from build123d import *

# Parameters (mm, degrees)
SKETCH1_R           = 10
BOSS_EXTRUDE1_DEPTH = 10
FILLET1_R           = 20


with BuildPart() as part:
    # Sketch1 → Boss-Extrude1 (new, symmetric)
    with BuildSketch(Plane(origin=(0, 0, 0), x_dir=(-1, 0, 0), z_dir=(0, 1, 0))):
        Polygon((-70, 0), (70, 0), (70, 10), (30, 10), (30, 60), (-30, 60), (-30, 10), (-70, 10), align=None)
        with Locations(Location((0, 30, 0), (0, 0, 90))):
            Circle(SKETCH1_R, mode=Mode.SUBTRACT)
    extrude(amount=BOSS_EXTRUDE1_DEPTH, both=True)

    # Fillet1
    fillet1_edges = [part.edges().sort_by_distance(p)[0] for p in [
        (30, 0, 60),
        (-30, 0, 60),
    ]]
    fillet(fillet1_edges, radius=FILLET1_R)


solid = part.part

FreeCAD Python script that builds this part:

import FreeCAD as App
import Part
import Sketcher

V = App.Vector


def edges_at(feature, points):
    """Names of the edges that pass closest to the given points."""
    edges = feature.Shape.Edges
    near = lambda p: min(range(len(edges)), key=lambda i: edges[i].distToShape(Part.Vertex(*p))[0])
    return sorted({f"Edge{near(p) + 1}" for p in points})

doc = App.newDocument("Part")
body = doc.addObject("PartDesign::Body", "Body")

sketch1 = body.newObject("Sketcher::SketchObject", "Sketch")
sketch1.AttachmentSupport = (doc.getObject("XZ_Plane"), [""])
sketch1.MapMode = "FlatFace"
sketch1.addGeometry(Part.LineSegment(V(70, 0, 0), V(-70, 0, 0)), False)
sketch1.addGeometry(Part.LineSegment(V(-70, 0, 0), V(-70, 10, 0)), False)
sketch1.addGeometry(Part.LineSegment(V(-70, 10, 0), V(-30, 10, 0)), False)
sketch1.addGeometry(Part.LineSegment(V(-30, 10, 0), V(-30, 60, 0)), False)
sketch1.addGeometry(Part.LineSegment(V(-30, 60, 0), V(30, 60, 0)), False)
sketch1.addGeometry(Part.LineSegment(V(30, 60, 0), V(30, 10, 0)), False)
sketch1.addGeometry(Part.LineSegment(V(30, 10, 0), V(70, 10, 0)), False)
sketch1.addGeometry(Part.LineSegment(V(70, 10, 0), V(70, 0, 0)), False)
sketch1.addGeometry(Part.Circle(V(0, 30, 0), V(0, 0, 1), 10), False)
sketch1.addConstraint(Sketcher.Constraint("Coincident", 0, 2, 1, 1))
sketch1.addConstraint(Sketcher.Constraint("Coincident", 1, 2, 2, 1))
sketch1.addConstraint(Sketcher.Constraint("Coincident", 2, 2, 3, 1))
sketch1.addConstraint(Sketcher.Constraint("Coincident", 3, 2, 4, 1))
sketch1.addConstraint(Sketcher.Constraint("Coincident", 4, 2, 5, 1))
sketch1.addConstraint(Sketcher.Constraint("Coincident", 5, 2, 6, 1))
sketch1.addConstraint(Sketcher.Constraint("Coincident", 6, 2, 7, 1))
sketch1.addConstraint(Sketcher.Constraint("Coincident", 7, 2, 0, 1))
sketch1.addConstraint(Sketcher.Constraint("Horizontal", 0))
sketch1.addConstraint(Sketcher.Constraint("Vertical", 1))
sketch1.addConstraint(Sketcher.Constraint("Horizontal", 2))
sketch1.addConstraint(Sketcher.Constraint("Vertical", 3))
sketch1.addConstraint(Sketcher.Constraint("Horizontal", 4))
sketch1.addConstraint(Sketcher.Constraint("Vertical", 5))
sketch1.addConstraint(Sketcher.Constraint("Horizontal", 6))
sketch1.addConstraint(Sketcher.Constraint("Vertical", 7))
sketch1.addConstraint(Sketcher.Constraint("Symmetric", 0, 2, 7, 2, -1, 1))
sketch1.addConstraint(Sketcher.Constraint("Symmetric", 2, 2, 5, 2, -2))
sketch1.addConstraint(Sketcher.Constraint("PointOnObject", 8, 3, -2))
sketch1.addConstraint(Sketcher.Constraint("Diameter", 8, 20.0))
sketch1.addConstraint(Sketcher.Constraint("DistanceX", 0, 2, 0, 1, 140.0))
sketch1.addConstraint(Sketcher.Constraint("DistanceX", 2, 1, 2, 2, 40.0))
sketch1.addConstraint(Sketcher.Constraint("DistanceY", 1, 1, 1, 2, 10.0))
sketch1.addConstraint(Sketcher.Constraint("DistanceY", 3, 1, 3, 2, 50.0))
sketch1.addConstraint(Sketcher.Constraint("DistanceY", -1, 1, 8, 3, 30.0))
pad1 = body.newObject("PartDesign::Pad", "Pad")
pad1.Profile = sketch1
pad1.Length = 20
pad1.Midplane = True
doc.recompute()

fillet = body.newObject("PartDesign::Fillet", "Fillet")
fillet.Base = (pad1, edges_at(pad1, [(30, 0, 60), (-30, 0, 60)]))
fillet.Radius = 20

doc.recompute()
